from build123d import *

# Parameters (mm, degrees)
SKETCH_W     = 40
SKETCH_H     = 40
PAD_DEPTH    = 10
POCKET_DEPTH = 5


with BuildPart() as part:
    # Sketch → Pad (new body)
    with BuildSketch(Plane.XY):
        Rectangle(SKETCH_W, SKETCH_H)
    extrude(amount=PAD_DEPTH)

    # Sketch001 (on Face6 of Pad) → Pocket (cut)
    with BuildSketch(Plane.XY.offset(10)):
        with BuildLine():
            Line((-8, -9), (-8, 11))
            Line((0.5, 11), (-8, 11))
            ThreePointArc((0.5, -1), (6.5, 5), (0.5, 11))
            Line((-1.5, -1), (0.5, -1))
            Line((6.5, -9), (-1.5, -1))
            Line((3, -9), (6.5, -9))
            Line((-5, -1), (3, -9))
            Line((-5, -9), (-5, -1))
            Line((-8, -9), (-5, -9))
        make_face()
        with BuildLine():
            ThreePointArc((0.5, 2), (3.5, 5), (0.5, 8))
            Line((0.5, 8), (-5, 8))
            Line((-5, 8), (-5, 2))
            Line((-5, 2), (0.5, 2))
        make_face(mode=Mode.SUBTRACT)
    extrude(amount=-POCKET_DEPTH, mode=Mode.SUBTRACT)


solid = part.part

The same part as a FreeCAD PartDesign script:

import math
import FreeCAD as App
import Part
import Sketcher

V = App.Vector
Q = App.Units.Quantity


def add_polygon(sketch, points):
    """Adds a closed chain of lines whose ends are joined by coincident constraints."""
    first, n = sketch.GeometryCount, len(points)
    for a, b in zip(points, points[1:] + points[:1]):
        sketch.addGeometry(Part.LineSegment(App.Vector(*a, 0), App.Vector(*b, 0)), False)
    for i in range(n):
        sketch.addConstraint(Sketcher.Constraint("Coincident", first + i, 2, first + (i + 1) % n, 1))

doc = App.newDocument("Part")
body = doc.addObject("PartDesign::Body", "Body")

sketch1 = body.newObject("Sketcher::SketchObject", "Sketch")
sketch1.AttachmentSupport = (doc.getObject("XY_Plane"), [""])
sketch1.MapMode = "FlatFace"
add_polygon(sketch1, [(-20, 20), (-20, -20), (20, -20), (20, 20)])
sketch1.addConstraint([
    Sketcher.Constraint("Vertical", 0),
    Sketcher.Constraint("Horizontal", 1),
    Sketcher.Constraint("Vertical", 2),
    Sketcher.Constraint("Horizontal", 3),
    Sketcher.Constraint("Symmetric", 0, 2, 2, 2, -1, 1),
    Sketcher.Constraint("Equal", 3, 0),
    Sketcher.Constraint("DistanceX", 1, 1, 1, 2, 40.0),
])
pad1 = body.newObject("PartDesign::Pad", "Pad")
pad1.Profile = sketch1
pad1.Length = 10

sketch2 = body.newObject("Sketcher::SketchObject", "Sketch001")
sketch2.AttachmentSupport = (doc.getObject("XY_Plane"), [""])
sketch2.MapMode = "FlatFace"
sketch2.AttachmentOffset = App.Placement(V(0, 0, 10), App.Rotation())
sketch2.addGeometry([
    Part.LineSegment(V(-8, 11, 0), V(-8, -9, 0)),
    Part.LineSegment(V(-8, -9, 0), V(-5, -9, 0)),
    Part.LineSegment(V(-5, -9, 0), V(-5, -1, 0)),
    Part.LineSegment(V(-5, -1, 0), V(3, -9, 0)),
    Part.LineSegment(V(3, -9, 0), V(6.5, -9, 0)),
    Part.LineSegment(V(6.5, -9, 0), V(-1.5, -1, 0)),
    Part.LineSegment(V(-1.5, -1, 0), V(0.5, -1, 0)),
    Part.ArcOfCircle(Part.Circle(V(0.5, 5, 0), V(0, 0, 1), 6), math.radians(-90), math.radians(90)),
    Part.LineSegment(V(0.5, 11, 0), V(-8, 11, 0)),
    Part.LineSegment(V(0.5, 2, 0), V(-5, 2, 0)),
    Part.LineSegment(V(-5, 2, 0), V(-5, 8, 0)),
    Part.LineSegment(V(-5, 8, 0), V(0.5, 8, 0)),
    Part.ArcOfCircle(Part.Circle(V(0.5, 5, 0), V(0, 0, 1), 3), math.radians(-90), math.radians(90)),
], False)
sketch2.addConstraint([
    Sketcher.Constraint("Coincident", 0, 2, 1, 1),
    Sketcher.Constraint("Coincident", 1, 2, 2, 1),
    Sketcher.Constraint("Coincident", 2, 2, 3, 1),
    Sketcher.Constraint("Coincident", 3, 2, 4, 1),
    Sketcher.Constraint("Coincident", 4, 2, 5, 1),
    Sketcher.Constraint("Coincident", 5, 2, 6, 1),
    Sketcher.Constraint("Tangent", 6, 2, 7, 1),
    Sketcher.Constraint("Tangent", 7, 2, 8, 1),
    Sketcher.Constraint("Coincident", 8, 2, 0, 1),
    Sketcher.Constraint("Coincident", 9, 2, 10, 1),
    Sketcher.Constraint("Coincident", 10, 2, 11, 1),
    Sketcher.Constraint("Tangent", 11, 2, 12, 2),
    Sketcher.Constraint("Tangent", 12, 1, 9, 1),
    Sketcher.Constraint("Vertical", 0),
    Sketcher.Constraint("Horizontal", 1),
    Sketcher.Constraint("Vertical", 2),
    Sketcher.Constraint("Horizontal", 4),
    Sketcher.Constraint("Horizontal", 6),
    Sketcher.Constraint("Horizontal", 8),
    Sketcher.Constraint("Horizontal", 9),
    Sketcher.Constraint("Vertical", 10),
    Sketcher.Constraint("Horizontal", 11),
    Sketcher.Constraint("Coincident", 12, 3, 7, 3),
    Sketcher.Constraint("Parallel", 3, 5),
    Sketcher.Constraint("Horizontal", 1, 2, 3, 2),
    Sketcher.Constraint("Horizontal", 2, 2, 5, 2),
    Sketcher.Constraint("Vertical", 2, 2, 9, 2),
    Sketcher.Constraint("Radius", 7, 6.0),
    Sketcher.Constraint("Radius", 12, 3.0),
    Sketcher.Constraint("DistanceX", 1, 1, 1, 2, 3.0),
    Sketcher.Constraint("DistanceX", 6, 1, 6, 2, 2.0),
    Sketcher.Constraint("DistanceY", 0, 2, 0, 1, 20.0),
    Sketcher.Constraint("Angle", 3, Q("-45 deg")),
    Sketcher.Constraint("DistanceX", 4, 1, 4, 2, 3.5),
    Sketcher.Constraint("DistanceY", -1, 1, 7, 3, 5.0),
    Sketcher.Constraint("DistanceX", 0, 2, -1, 1, 8.0),
])
pocket1 = body.newObject("PartDesign::Pocket", "Pocket")
pocket1.Profile = sketch2
pocket1.Length = 5

doc.recompute()
